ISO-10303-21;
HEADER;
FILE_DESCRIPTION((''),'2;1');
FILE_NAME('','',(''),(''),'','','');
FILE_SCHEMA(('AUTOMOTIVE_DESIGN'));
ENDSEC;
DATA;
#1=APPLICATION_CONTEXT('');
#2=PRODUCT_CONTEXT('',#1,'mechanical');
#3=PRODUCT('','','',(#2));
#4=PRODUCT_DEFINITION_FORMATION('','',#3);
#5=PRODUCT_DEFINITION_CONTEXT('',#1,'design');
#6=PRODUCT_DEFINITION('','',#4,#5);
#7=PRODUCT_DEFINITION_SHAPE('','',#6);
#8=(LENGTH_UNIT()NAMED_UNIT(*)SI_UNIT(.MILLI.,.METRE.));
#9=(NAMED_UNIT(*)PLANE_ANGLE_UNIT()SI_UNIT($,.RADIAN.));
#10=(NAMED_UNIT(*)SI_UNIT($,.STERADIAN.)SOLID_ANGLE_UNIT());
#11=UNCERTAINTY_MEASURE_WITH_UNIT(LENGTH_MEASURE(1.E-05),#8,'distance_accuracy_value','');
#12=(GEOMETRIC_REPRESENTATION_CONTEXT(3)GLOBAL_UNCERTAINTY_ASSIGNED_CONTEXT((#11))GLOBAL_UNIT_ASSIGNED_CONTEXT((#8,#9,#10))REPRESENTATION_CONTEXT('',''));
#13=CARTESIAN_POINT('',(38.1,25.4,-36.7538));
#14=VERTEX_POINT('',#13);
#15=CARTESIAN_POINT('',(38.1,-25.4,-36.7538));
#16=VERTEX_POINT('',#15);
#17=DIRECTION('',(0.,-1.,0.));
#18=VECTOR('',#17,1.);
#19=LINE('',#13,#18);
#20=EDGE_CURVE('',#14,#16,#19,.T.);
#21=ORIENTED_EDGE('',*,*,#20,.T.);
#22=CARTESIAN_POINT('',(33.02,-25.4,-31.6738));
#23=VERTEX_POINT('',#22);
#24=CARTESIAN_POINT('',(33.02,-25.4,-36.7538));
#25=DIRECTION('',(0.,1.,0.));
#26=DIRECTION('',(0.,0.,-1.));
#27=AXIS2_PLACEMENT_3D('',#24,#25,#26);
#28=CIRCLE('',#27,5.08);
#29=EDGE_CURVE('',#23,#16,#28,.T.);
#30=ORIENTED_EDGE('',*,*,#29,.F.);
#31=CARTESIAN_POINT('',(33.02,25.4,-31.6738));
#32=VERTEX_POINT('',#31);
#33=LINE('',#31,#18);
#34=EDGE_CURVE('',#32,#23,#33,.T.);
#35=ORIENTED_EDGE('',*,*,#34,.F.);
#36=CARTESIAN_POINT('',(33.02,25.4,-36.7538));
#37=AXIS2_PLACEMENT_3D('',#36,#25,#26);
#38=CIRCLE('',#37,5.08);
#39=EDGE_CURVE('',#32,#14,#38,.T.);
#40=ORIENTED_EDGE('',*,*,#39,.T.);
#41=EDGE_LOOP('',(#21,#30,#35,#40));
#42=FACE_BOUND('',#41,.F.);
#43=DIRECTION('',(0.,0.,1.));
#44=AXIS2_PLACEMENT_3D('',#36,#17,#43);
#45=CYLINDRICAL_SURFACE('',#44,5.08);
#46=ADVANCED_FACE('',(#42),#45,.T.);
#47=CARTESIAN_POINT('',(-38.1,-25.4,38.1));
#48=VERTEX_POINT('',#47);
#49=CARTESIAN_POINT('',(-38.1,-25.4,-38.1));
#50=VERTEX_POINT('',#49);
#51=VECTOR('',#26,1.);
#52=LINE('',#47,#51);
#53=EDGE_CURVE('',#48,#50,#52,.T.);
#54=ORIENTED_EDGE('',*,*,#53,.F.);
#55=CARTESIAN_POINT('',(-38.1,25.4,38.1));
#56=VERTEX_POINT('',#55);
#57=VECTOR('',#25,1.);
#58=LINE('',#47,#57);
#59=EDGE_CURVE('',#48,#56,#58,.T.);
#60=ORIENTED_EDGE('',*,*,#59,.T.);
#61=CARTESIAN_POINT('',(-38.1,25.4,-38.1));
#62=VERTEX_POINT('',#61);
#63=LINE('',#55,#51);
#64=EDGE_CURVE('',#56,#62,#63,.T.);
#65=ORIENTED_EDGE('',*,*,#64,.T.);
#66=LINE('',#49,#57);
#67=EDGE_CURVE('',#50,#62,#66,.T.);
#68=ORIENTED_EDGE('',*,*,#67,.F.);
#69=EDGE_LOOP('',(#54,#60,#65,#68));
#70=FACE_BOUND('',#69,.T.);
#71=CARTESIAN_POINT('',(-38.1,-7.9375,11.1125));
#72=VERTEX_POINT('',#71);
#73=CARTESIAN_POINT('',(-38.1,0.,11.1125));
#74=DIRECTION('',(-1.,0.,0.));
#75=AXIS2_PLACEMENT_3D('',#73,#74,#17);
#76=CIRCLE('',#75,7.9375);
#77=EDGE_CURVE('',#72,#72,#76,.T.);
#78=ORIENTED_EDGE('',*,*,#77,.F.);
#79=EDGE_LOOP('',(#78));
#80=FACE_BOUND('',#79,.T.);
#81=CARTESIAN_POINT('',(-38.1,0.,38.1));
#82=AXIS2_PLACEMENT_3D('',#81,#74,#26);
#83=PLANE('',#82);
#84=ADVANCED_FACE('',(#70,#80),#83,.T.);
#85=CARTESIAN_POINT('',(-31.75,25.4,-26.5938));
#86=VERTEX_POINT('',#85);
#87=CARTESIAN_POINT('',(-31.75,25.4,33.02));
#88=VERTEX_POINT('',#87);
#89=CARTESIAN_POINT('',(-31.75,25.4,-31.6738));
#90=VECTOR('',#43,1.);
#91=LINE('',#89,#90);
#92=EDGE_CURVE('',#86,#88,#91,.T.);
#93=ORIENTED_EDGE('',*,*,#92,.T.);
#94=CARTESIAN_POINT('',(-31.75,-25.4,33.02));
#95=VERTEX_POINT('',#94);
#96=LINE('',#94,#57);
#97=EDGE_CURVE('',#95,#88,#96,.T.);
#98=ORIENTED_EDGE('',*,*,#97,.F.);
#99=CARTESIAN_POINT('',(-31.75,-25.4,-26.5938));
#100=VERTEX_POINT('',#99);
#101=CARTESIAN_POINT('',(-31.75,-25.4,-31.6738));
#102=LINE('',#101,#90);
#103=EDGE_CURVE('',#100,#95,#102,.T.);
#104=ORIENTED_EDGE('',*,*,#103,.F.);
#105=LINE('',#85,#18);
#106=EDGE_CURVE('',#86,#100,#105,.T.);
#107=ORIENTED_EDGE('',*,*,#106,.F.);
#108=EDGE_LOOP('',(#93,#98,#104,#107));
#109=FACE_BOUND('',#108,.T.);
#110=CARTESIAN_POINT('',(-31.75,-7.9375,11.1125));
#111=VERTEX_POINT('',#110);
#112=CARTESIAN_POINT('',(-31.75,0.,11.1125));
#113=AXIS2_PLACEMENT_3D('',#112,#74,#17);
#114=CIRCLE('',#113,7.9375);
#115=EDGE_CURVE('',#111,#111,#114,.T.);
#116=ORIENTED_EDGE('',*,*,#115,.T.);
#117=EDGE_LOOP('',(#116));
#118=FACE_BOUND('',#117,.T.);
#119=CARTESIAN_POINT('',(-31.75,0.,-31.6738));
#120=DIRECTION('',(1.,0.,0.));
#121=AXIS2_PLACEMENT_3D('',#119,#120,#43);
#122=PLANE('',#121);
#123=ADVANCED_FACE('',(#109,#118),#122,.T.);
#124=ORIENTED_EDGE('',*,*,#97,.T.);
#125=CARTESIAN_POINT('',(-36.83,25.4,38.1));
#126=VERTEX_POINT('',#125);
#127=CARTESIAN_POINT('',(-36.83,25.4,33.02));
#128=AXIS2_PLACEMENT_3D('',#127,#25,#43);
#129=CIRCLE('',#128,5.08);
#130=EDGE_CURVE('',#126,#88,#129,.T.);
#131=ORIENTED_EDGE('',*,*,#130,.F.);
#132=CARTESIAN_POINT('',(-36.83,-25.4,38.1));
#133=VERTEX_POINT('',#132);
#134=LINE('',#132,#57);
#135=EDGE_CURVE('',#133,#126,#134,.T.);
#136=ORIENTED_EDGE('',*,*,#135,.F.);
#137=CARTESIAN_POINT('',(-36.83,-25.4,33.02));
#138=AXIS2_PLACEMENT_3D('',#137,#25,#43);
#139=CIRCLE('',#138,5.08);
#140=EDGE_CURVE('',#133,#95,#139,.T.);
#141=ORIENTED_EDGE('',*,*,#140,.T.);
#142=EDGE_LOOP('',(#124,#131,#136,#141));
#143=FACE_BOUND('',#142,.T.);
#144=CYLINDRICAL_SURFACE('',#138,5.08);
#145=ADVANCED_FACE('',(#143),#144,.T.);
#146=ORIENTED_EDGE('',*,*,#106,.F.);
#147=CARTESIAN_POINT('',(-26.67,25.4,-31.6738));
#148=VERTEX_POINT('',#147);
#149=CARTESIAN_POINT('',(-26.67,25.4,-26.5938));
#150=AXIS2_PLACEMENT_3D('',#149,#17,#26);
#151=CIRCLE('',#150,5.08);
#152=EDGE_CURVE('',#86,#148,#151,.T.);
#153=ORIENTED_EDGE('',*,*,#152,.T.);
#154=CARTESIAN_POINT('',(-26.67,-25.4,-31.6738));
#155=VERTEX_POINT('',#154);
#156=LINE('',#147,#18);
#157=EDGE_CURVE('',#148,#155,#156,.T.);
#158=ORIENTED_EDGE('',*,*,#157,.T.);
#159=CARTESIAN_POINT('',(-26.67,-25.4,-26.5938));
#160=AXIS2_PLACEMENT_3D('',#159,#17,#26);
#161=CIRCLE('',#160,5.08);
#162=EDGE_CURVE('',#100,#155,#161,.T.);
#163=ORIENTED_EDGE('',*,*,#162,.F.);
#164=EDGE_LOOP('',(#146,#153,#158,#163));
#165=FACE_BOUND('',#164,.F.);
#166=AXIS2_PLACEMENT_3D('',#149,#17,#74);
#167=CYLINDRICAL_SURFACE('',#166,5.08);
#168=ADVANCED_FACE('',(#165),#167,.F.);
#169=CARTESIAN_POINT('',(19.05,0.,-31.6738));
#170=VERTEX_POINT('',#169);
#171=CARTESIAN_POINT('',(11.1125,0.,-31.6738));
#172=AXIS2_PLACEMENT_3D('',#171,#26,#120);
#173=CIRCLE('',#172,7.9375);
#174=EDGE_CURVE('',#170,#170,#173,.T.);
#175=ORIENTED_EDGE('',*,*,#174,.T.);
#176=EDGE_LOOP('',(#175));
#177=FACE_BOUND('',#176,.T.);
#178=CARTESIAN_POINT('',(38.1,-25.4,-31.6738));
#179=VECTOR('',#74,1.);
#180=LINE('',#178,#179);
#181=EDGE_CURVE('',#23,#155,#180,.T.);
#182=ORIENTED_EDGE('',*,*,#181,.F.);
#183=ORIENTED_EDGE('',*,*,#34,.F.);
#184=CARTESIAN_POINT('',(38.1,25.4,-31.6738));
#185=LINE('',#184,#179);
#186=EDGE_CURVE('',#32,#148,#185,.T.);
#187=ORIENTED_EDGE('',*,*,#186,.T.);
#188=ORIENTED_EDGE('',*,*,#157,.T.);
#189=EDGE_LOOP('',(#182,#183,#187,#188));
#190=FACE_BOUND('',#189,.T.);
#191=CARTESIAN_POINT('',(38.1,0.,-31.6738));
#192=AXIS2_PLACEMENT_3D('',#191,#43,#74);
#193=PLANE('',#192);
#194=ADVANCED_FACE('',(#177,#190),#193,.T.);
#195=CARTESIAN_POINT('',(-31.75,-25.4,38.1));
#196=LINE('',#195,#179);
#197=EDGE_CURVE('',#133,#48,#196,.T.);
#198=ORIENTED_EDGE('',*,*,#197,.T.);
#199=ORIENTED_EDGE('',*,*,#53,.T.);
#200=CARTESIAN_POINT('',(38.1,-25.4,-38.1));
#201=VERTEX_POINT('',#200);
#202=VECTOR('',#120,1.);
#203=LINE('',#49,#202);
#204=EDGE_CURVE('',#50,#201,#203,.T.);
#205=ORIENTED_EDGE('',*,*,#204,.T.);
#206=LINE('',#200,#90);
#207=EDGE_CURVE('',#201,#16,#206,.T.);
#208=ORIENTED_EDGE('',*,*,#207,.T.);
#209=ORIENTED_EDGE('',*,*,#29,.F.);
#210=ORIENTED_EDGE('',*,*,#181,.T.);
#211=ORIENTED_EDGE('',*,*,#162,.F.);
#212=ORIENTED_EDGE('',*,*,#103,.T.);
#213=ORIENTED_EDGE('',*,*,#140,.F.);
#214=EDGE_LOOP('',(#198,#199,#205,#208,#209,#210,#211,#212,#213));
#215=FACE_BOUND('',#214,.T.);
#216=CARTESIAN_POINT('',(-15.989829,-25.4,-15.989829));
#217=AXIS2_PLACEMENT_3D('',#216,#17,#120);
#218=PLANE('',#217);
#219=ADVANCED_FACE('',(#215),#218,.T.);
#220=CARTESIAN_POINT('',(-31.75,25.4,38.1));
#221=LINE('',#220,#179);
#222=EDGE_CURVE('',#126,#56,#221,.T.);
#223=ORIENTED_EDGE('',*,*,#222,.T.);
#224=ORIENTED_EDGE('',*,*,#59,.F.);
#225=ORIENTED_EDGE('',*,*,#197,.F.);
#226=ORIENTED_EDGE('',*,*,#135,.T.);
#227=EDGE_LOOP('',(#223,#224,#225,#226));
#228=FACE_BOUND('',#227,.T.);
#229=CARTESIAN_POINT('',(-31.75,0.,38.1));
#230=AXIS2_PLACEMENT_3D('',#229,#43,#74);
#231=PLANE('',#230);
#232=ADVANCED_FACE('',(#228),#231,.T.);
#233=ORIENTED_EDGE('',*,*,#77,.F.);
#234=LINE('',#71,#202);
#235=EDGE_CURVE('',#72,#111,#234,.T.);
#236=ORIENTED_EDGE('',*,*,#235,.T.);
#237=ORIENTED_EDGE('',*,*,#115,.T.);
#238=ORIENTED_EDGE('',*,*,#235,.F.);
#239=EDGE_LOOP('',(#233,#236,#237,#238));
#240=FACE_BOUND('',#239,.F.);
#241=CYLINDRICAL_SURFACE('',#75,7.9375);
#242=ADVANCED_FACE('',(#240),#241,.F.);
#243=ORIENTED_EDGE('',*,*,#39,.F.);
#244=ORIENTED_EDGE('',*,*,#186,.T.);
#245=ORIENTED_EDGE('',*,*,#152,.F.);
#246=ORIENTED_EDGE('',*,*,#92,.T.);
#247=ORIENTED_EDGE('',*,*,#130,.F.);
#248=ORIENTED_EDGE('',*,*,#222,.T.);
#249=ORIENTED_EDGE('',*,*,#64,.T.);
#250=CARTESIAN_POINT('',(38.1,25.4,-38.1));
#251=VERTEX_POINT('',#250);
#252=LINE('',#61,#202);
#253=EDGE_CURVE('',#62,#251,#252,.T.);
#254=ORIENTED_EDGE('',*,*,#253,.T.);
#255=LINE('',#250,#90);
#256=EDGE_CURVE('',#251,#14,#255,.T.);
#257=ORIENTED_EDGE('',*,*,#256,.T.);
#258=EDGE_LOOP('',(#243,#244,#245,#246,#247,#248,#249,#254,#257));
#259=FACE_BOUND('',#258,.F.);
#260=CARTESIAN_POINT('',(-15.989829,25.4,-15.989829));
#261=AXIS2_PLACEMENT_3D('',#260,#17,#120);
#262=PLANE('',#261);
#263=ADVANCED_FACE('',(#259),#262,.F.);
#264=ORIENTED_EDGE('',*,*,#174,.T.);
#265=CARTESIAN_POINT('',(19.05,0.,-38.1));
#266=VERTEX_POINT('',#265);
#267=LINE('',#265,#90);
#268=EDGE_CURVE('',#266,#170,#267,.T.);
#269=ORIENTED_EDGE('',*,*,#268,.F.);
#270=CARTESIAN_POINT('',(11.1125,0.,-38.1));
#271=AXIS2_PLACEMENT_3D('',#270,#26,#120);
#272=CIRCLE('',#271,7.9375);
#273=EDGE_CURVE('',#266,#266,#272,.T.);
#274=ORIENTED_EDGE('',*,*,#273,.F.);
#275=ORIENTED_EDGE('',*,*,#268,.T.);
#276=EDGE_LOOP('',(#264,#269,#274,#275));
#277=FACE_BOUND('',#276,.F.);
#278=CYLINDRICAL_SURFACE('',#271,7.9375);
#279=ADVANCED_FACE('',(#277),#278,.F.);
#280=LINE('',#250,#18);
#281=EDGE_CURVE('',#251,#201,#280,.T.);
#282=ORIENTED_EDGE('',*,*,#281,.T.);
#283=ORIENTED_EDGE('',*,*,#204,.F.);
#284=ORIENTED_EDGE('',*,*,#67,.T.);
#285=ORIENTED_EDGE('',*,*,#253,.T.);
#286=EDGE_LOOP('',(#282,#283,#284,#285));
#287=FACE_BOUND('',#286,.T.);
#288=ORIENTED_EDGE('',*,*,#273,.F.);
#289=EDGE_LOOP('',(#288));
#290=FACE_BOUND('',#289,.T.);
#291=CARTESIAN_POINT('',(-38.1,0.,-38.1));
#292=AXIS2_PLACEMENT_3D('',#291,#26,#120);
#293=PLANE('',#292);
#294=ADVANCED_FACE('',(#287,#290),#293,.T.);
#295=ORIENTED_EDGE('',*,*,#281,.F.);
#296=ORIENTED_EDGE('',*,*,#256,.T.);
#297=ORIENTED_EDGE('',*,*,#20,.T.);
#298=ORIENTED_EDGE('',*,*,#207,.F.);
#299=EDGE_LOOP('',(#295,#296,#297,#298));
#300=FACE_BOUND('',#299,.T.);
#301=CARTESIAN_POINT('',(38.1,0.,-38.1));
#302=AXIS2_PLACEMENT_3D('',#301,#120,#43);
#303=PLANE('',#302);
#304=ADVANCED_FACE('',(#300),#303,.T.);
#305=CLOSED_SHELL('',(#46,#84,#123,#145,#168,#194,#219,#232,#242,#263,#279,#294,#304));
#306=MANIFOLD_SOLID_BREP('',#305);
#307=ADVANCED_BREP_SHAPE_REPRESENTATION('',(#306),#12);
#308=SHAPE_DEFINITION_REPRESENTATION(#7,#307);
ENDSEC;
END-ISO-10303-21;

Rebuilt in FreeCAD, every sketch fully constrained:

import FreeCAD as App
import Part
import Sketcher
from FreeCAD import Vector
Q = App.Units.Quantity


def edges_at(feature, points):
    """Names of the edges that pass closest to the given points."""
    edges = feature.Shape.Edges
    near = lambda p: min(range(len(edges)), key=lambda i: edges[i].distToShape(Part.Vertex(*p))[0])
    return sorted({f"Edge{near(p) + 1}" for p in points})


def add_polygon(sketch, points):
    """Adds a closed chain of lines whose ends are joined by coincident constraints."""
    first, n = sketch.GeometryCount, len(points)
    for a, b in zip(points, points[1:] + points[:1]):
        sketch.addGeometry(Part.LineSegment(App.Vector(*a, 0), App.Vector(*b, 0)), False)
    for i in range(n):
        sketch.addConstraint(Sketcher.Constraint("Coincident", first + i, 2, first + (i + 1) % n, 1))

doc = App.newDocument("Part")
body = doc.addObject("PartDesign::Body", "Body")

# Sketch on XZ plane
sketch1 = doc.addObject("Sketcher::SketchObject", "Sketch")
body.addObject(sketch1)
sketch1.AttachmentSupport = (doc.XZ_Plane, [""])
sketch1.MapMode = "FlatFace"
add_polygon(sketch1, [(-38, -38), (38, -38), (38, -32), (-32, -32), (-32, 38), (-38, 38)])  # lines 0-5
sketch1.addConstraint(Sketcher.Constraint("Horizontal", 0))
sketch1.addConstraint(Sketcher.Constraint("Vertical", 1))
sketch1.addConstraint(Sketcher.Constraint("Horizontal", 2))
sketch1.addConstraint(Sketcher.Constraint("Vertical", 3))
sketch1.addConstraint(Sketcher.Constraint("Horizontal", 4))
sketch1.addConstraint(Sketcher.Constraint("Vertical", 5))
sketch1.addConstraint(Sketcher.Constraint("Symmetric", 0, 2, 4, 2, -1, 1))
sketch1.addConstraint(Sketcher.Constraint("Equal", 0, 5))
sketch1.addConstraint(Sketcher.Constraint("DistanceX", 0, 1, 0, 2, Q("3 in")))
sketch1.addConstraint(Sketcher.Constraint("DistanceX", 2, 2, 2, 1, Q("2.75 in")))
sketch1.addConstraint(Sketcher.Constraint("DistanceY", 1, 1, 1, 2, Q("0.253 in")))
pad1 = doc.addObject("PartDesign::Pad", "Pad")
body.addObject(pad1)
pad1.Profile = sketch1
pad1.Length = Q("2 in")
pad1.Midplane = True
doc.recompute()

fillet = doc.addObject("PartDesign::Fillet", "Fillet")
body.addObject(fillet)
fillet.Base = (pad1, edges_at(pad1, [(-31.75, 0, 38.1), (-31.75, 0, -31.674), (38.1, 0, -31.674)]))
fillet.Radius = Q("0.2 in")

# Sketch on YZ plane
sketch2 = doc.addObject("Sketcher::SketchObject", "Sketch001")
body.addObject(sketch2)
sketch2.AttachmentSupport = (doc.YZ_Plane, [""])
sketch2.MapMode = "FlatFace"
sketch2.AttachmentOffset = App.Placement(Vector(0, 0, -1.5 * 25.4), App.Rotation())
sketch2.addGeometry(Part.Circle(Vector(0, 11, 0), Vector(0, 0, 1), 8), False)
sketch2.addConstraint(Sketcher.Constraint("PointOnObject", 0, 3, -2))
sketch2.addConstraint(Sketcher.Constraint("Diameter", 0, Q("0.625 in")))
sketch2.addConstraint(Sketcher.Constraint("DistanceY", -1, 1, 0, 3, Q("0.4375 in")))
pocket1 = doc.addObject("PartDesign::Pocket", "Pocket")
body.addObject(pocket1)
pocket1.Profile = sketch2
pocket1.Length = Q("1 in")
pocket1.Reversed = True

# Sketch on XY plane
sketch3 = doc.addObject("Sketcher::SketchObject", "Sketch002")
body.addObject(sketch3)
sketch3.AttachmentSupport = (doc.XY_Plane, [""])
sketch3.MapMode = "FlatFace"
sketch3.AttachmentOffset = App.Placement(Vector(0, 0, -1.5 * 25.4), App.Rotation())
sketch3.addGeometry(Part.Circle(Vector(11, 0, 0), Vector(0, 0, 1), 8), False)
sketch3.addConstraint(Sketcher.Constraint("PointOnObject", 0, 3, -1))
sketch3.addConstraint(Sketcher.Constraint("Diameter", 0, Q("0.625 in")))
sketch3.addConstraint(Sketcher.Constraint("DistanceX", -1, 1, 0, 3, Q("0.4375 in")))
pocket2 = doc.addObject("PartDesign::Pocket", "Pocket001")
body.addObject(pocket2)
pocket2.Profile = sketch3
pocket2.Length = Q("1 in")
pocket2.Reversed = True

doc.recompute()
